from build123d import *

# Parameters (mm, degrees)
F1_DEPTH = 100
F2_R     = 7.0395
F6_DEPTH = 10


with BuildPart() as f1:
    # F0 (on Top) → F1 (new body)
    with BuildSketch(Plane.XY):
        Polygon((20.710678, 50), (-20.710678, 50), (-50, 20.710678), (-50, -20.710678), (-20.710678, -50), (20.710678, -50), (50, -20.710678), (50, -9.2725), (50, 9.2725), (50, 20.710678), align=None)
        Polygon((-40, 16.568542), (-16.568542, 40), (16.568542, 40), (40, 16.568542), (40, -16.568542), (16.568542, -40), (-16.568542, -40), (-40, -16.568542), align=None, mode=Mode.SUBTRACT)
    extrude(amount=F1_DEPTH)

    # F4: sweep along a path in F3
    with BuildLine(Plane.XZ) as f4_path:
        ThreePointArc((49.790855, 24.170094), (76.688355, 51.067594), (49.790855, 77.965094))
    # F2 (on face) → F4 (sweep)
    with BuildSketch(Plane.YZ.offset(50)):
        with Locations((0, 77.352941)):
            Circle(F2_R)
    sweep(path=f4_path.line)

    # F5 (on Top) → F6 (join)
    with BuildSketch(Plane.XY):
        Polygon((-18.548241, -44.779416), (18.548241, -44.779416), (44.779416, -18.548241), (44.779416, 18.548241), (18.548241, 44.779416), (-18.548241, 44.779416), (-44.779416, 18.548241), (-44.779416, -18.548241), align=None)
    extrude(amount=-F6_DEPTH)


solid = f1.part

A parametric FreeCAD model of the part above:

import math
import FreeCAD as App
import Part
import Sketcher
from FreeCAD import Vector


def add_polygon(sketch, points):
    """Adds a closed chain of lines whose ends are joined by coincident constraints."""
    first, n = sketch.GeometryCount, len(points)
    for a, b in zip(points, points[1:] + points[:1]):
        sketch.addGeometry(Part.LineSegment(App.Vector(*a, 0), App.Vector(*b, 0)), False)
    for i in range(n):
        sketch.addConstraint(Sketcher.Constraint("Coincident", first + i, 2, first + (i + 1) % n, 1))

doc = App.newDocument("Part")
body = doc.addObject("PartDesign::Body", "Body")

sketch1 = doc.addObject("Sketcher::SketchObject", "Sketch")
body.addObject(sketch1)
sketch1.AttachmentSupport = (doc.XY_Plane, [""])
sketch1.MapMode = "FlatFace"
add_polygon(sketch1, [(20.710678, 50), (-20.710678, 50), (-50, 20.710678), (-50, -20.710678), (-20.710678, -50), (20.710678, -50), (50, -20.710678), (50, 20.710678)])
add_polygon(sketch1, [(-40, -16.568542), (-40, 16.568542), (-16.568542, 40), (16.568542, 40), (40, 16.568542), (40, -16.568542), (16.568542, -40), (-16.568542, -40)])
sketch1.addConstraint(Sketcher.Constraint("Horizontal", 0))
sketch1.addConstraint(Sketcher.Constraint("Vertical", 2))
sketch1.addConstraint(Sketcher.Constraint("Horizontal", 4))
sketch1.addConstraint(Sketcher.Constraint("Vertical", 6))
sketch1.addConstraint(Sketcher.Constraint("Vertical", 8))
sketch1.addConstraint(Sketcher.Constraint("Horizontal", 10))
sketch1.addConstraint(Sketcher.Constraint("Vertical", 12))
sketch1.addConstraint(Sketcher.Constraint("Horizontal", 14))
sketch1.addConstraint(Sketcher.Constraint("Symmetric", 0, 2, 4, 2, -1, 1))
sketch1.addConstraint(Sketcher.Constraint("Symmetric", 1, 2, 5, 2, -1, 1))
sketch1.addConstraint(Sketcher.Constraint("Symmetric", 8, 2, 12, 2, -1, 1))
sketch1.addConstraint(Sketcher.Constraint("Symmetric", 9, 2, 13, 2, -1, 1))
sketch1.addConstraint(Sketcher.Constraint("Perpendicular", 1, 3))
sketch1.addConstraint(Sketcher.Constraint("Perpendicular", 5, 7))
sketch1.addConstraint(Sketcher.Constraint("Perpendicular", 7, 9))
sketch1.addConstraint(Sketcher.Constraint("Perpendicular", 9, 11))
sketch1.addConstraint(Sketcher.Constraint("Perpendicular", 13, 15))
sketch1.addConstraint(Sketcher.Constraint("Horizontal", 2, 2, 5, 2))
sketch1.addConstraint(Sketcher.Constraint("Horizontal", 1, 2, 6, 2))
sketch1.addConstraint(Sketcher.Constraint("Horizontal", 8, 2, 11, 2))
sketch1.addConstraint(Sketcher.Constraint("Horizontal", 12, 2, 15, 2))
sketch1.addConstraint(Sketcher.Constraint("Vertical", 0, 2, 3, 2))
sketch1.addConstraint(Sketcher.Constraint("Equal", 4, 2))
sketch1.addConstraint(Sketcher.Constraint("Equal", 14, 8))
sketch1.addConstraint(Sketcher.Constraint("DistanceY", -1, 1, 0, 2, 50.0))
sketch1.addConstraint(Sketcher.Constraint("DistanceX", 8, 2, -1, 1, 40.0))
sketch1.addConstraint(Sketcher.Constraint("DistanceX", 0, 2, 0, 1, 41.421356))
sketch1.addConstraint(Sketcher.Constraint("DistanceX", 10, 1, 10, 2, 33.137084))
pad1 = doc.addObject("PartDesign::Pad", "Pad")
body.addObject(pad1)
pad1.Profile = sketch1
pad1.Length = 100

sketch2 = doc.addObject("Sketcher::SketchObject", "Sketch001")
body.addObject(sketch2)
sketch2.AttachmentSupport = (doc.YZ_Plane, [""])
sketch2.MapMode = "FlatFace"
sketch2.AttachmentOffset = App.Placement(Vector(0, 0, 50), App.Rotation())
sketch2.addGeometry(Part.Circle(Vector(0, 77.352941, 0), Vector(0, 0, 1), 7.0395), False)
sketch2.addConstraint(Sketcher.Constraint("PointOnObject", 0, 3, -2))
sketch2.addConstraint(Sketcher.Constraint("Diameter", 0, 14.079))
sketch2.addConstraint(Sketcher.Constraint("DistanceY", -1, 1, 0, 3, 77.352941))

sketch3 = doc.addObject("Sketcher::SketchObject", "Sketch002")
body.addObject(sketch3)
sketch3.AttachmentSupport = (doc.XZ_Plane, [""])
sketch3.MapMode = "FlatFace"
sketch3.addGeometry(Part.ArcOfCircle(Part.Circle(Vector(49.790855, 51.067594, 0), Vector(0, 0, 1), 26.8975), math.radians(-90), math.radians(90)), False)
sketch3.addConstraint(Sketcher.Constraint("Radius", 0, 26.8975))
sketch3.addConstraint(Sketcher.Constraint("DistanceX", -1, 1, 0, 3, 49.790855))
sketch3.addConstraint(Sketcher.Constraint("DistanceY", -1, 1, 0, 3, 51.067594))
sketch3.addConstraint(Sketcher.Constraint("DistanceX", -1, 1, 0, 1, 49.790855))
sketch3.addConstraint(Sketcher.Constraint("DistanceX", -1, 1, 0, 2, 49.790855))
doc.recompute()

additivepipe = doc.addObject("PartDesign::AdditivePipe", "AdditivePipe")
body.addObject(additivepipe)
additivepipe.Profile = sketch2
additivepipe.Spine = (sketch3, ["Edge1"])

sketch4 = doc.addObject("Sketcher::SketchObject", "Sketch003")
body.addObject(sketch4)
sketch4.AttachmentSupport = (doc.XY_Plane, [""])
sketch4.MapMode = "FlatFace"
add_polygon(sketch4, [(-18.548241, -44.779416), (18.548241, -44.779416), (44.779416, -18.548241), (44.779416, 18.548241), (18.548241, 44.779416), (-18.548241, 44.779416), (-44.779416, 18.548241), (-44.779416, -18.548241)])
sketch4.addConstraint(Sketcher.Constraint("Horizontal", 0))
sketch4.addConstraint(Sketcher.Constraint("Vertical", 2))
sketch4.addConstraint(Sketcher.Constraint("Horizontal", 4))
sketch4.addConstraint(Sketcher.Constraint("Vertical", 6))
sketch4.addConstraint(Sketcher.Constraint("Symmetric", 0, 2, 4, 2, -1, 1))
sketch4.addConstraint(Sketcher.Constraint("Symmetric", 1, 2, 5, 2, -1, 1))
sketch4.addConstraint(Sketcher.Constraint("Perpendicular", 1, 3))
sketch4.addConstraint(Sketcher.Constraint("Perpendicular", 5, 7))
sketch4.addConstraint(Sketcher.Constraint("Horizontal", 2, 2, 5, 2))
sketch4.addConstraint(Sketcher.Constraint("Horizontal", 1, 2, 6, 2))
sketch4.addConstraint(Sketcher.Constraint("Vertical", 0, 2, 3, 2))
sketch4.addConstraint(Sketcher.Constraint("Equal", 4, 2))
sketch4.addConstraint(Sketcher.Constraint("DistanceX", 0, 1, 0, 2, 37.096482))
sketch4.addConstraint(Sketcher.Constraint("DistanceY", 0, 2, 3, 2, 89.558832))
pad2 = doc.addObject("PartDesign::Pad", "Pad001")
body.addObject(pad2)
pad2.Profile = sketch4
pad2.Length = 10
pad2.Reversed = True

doc.recompute()
